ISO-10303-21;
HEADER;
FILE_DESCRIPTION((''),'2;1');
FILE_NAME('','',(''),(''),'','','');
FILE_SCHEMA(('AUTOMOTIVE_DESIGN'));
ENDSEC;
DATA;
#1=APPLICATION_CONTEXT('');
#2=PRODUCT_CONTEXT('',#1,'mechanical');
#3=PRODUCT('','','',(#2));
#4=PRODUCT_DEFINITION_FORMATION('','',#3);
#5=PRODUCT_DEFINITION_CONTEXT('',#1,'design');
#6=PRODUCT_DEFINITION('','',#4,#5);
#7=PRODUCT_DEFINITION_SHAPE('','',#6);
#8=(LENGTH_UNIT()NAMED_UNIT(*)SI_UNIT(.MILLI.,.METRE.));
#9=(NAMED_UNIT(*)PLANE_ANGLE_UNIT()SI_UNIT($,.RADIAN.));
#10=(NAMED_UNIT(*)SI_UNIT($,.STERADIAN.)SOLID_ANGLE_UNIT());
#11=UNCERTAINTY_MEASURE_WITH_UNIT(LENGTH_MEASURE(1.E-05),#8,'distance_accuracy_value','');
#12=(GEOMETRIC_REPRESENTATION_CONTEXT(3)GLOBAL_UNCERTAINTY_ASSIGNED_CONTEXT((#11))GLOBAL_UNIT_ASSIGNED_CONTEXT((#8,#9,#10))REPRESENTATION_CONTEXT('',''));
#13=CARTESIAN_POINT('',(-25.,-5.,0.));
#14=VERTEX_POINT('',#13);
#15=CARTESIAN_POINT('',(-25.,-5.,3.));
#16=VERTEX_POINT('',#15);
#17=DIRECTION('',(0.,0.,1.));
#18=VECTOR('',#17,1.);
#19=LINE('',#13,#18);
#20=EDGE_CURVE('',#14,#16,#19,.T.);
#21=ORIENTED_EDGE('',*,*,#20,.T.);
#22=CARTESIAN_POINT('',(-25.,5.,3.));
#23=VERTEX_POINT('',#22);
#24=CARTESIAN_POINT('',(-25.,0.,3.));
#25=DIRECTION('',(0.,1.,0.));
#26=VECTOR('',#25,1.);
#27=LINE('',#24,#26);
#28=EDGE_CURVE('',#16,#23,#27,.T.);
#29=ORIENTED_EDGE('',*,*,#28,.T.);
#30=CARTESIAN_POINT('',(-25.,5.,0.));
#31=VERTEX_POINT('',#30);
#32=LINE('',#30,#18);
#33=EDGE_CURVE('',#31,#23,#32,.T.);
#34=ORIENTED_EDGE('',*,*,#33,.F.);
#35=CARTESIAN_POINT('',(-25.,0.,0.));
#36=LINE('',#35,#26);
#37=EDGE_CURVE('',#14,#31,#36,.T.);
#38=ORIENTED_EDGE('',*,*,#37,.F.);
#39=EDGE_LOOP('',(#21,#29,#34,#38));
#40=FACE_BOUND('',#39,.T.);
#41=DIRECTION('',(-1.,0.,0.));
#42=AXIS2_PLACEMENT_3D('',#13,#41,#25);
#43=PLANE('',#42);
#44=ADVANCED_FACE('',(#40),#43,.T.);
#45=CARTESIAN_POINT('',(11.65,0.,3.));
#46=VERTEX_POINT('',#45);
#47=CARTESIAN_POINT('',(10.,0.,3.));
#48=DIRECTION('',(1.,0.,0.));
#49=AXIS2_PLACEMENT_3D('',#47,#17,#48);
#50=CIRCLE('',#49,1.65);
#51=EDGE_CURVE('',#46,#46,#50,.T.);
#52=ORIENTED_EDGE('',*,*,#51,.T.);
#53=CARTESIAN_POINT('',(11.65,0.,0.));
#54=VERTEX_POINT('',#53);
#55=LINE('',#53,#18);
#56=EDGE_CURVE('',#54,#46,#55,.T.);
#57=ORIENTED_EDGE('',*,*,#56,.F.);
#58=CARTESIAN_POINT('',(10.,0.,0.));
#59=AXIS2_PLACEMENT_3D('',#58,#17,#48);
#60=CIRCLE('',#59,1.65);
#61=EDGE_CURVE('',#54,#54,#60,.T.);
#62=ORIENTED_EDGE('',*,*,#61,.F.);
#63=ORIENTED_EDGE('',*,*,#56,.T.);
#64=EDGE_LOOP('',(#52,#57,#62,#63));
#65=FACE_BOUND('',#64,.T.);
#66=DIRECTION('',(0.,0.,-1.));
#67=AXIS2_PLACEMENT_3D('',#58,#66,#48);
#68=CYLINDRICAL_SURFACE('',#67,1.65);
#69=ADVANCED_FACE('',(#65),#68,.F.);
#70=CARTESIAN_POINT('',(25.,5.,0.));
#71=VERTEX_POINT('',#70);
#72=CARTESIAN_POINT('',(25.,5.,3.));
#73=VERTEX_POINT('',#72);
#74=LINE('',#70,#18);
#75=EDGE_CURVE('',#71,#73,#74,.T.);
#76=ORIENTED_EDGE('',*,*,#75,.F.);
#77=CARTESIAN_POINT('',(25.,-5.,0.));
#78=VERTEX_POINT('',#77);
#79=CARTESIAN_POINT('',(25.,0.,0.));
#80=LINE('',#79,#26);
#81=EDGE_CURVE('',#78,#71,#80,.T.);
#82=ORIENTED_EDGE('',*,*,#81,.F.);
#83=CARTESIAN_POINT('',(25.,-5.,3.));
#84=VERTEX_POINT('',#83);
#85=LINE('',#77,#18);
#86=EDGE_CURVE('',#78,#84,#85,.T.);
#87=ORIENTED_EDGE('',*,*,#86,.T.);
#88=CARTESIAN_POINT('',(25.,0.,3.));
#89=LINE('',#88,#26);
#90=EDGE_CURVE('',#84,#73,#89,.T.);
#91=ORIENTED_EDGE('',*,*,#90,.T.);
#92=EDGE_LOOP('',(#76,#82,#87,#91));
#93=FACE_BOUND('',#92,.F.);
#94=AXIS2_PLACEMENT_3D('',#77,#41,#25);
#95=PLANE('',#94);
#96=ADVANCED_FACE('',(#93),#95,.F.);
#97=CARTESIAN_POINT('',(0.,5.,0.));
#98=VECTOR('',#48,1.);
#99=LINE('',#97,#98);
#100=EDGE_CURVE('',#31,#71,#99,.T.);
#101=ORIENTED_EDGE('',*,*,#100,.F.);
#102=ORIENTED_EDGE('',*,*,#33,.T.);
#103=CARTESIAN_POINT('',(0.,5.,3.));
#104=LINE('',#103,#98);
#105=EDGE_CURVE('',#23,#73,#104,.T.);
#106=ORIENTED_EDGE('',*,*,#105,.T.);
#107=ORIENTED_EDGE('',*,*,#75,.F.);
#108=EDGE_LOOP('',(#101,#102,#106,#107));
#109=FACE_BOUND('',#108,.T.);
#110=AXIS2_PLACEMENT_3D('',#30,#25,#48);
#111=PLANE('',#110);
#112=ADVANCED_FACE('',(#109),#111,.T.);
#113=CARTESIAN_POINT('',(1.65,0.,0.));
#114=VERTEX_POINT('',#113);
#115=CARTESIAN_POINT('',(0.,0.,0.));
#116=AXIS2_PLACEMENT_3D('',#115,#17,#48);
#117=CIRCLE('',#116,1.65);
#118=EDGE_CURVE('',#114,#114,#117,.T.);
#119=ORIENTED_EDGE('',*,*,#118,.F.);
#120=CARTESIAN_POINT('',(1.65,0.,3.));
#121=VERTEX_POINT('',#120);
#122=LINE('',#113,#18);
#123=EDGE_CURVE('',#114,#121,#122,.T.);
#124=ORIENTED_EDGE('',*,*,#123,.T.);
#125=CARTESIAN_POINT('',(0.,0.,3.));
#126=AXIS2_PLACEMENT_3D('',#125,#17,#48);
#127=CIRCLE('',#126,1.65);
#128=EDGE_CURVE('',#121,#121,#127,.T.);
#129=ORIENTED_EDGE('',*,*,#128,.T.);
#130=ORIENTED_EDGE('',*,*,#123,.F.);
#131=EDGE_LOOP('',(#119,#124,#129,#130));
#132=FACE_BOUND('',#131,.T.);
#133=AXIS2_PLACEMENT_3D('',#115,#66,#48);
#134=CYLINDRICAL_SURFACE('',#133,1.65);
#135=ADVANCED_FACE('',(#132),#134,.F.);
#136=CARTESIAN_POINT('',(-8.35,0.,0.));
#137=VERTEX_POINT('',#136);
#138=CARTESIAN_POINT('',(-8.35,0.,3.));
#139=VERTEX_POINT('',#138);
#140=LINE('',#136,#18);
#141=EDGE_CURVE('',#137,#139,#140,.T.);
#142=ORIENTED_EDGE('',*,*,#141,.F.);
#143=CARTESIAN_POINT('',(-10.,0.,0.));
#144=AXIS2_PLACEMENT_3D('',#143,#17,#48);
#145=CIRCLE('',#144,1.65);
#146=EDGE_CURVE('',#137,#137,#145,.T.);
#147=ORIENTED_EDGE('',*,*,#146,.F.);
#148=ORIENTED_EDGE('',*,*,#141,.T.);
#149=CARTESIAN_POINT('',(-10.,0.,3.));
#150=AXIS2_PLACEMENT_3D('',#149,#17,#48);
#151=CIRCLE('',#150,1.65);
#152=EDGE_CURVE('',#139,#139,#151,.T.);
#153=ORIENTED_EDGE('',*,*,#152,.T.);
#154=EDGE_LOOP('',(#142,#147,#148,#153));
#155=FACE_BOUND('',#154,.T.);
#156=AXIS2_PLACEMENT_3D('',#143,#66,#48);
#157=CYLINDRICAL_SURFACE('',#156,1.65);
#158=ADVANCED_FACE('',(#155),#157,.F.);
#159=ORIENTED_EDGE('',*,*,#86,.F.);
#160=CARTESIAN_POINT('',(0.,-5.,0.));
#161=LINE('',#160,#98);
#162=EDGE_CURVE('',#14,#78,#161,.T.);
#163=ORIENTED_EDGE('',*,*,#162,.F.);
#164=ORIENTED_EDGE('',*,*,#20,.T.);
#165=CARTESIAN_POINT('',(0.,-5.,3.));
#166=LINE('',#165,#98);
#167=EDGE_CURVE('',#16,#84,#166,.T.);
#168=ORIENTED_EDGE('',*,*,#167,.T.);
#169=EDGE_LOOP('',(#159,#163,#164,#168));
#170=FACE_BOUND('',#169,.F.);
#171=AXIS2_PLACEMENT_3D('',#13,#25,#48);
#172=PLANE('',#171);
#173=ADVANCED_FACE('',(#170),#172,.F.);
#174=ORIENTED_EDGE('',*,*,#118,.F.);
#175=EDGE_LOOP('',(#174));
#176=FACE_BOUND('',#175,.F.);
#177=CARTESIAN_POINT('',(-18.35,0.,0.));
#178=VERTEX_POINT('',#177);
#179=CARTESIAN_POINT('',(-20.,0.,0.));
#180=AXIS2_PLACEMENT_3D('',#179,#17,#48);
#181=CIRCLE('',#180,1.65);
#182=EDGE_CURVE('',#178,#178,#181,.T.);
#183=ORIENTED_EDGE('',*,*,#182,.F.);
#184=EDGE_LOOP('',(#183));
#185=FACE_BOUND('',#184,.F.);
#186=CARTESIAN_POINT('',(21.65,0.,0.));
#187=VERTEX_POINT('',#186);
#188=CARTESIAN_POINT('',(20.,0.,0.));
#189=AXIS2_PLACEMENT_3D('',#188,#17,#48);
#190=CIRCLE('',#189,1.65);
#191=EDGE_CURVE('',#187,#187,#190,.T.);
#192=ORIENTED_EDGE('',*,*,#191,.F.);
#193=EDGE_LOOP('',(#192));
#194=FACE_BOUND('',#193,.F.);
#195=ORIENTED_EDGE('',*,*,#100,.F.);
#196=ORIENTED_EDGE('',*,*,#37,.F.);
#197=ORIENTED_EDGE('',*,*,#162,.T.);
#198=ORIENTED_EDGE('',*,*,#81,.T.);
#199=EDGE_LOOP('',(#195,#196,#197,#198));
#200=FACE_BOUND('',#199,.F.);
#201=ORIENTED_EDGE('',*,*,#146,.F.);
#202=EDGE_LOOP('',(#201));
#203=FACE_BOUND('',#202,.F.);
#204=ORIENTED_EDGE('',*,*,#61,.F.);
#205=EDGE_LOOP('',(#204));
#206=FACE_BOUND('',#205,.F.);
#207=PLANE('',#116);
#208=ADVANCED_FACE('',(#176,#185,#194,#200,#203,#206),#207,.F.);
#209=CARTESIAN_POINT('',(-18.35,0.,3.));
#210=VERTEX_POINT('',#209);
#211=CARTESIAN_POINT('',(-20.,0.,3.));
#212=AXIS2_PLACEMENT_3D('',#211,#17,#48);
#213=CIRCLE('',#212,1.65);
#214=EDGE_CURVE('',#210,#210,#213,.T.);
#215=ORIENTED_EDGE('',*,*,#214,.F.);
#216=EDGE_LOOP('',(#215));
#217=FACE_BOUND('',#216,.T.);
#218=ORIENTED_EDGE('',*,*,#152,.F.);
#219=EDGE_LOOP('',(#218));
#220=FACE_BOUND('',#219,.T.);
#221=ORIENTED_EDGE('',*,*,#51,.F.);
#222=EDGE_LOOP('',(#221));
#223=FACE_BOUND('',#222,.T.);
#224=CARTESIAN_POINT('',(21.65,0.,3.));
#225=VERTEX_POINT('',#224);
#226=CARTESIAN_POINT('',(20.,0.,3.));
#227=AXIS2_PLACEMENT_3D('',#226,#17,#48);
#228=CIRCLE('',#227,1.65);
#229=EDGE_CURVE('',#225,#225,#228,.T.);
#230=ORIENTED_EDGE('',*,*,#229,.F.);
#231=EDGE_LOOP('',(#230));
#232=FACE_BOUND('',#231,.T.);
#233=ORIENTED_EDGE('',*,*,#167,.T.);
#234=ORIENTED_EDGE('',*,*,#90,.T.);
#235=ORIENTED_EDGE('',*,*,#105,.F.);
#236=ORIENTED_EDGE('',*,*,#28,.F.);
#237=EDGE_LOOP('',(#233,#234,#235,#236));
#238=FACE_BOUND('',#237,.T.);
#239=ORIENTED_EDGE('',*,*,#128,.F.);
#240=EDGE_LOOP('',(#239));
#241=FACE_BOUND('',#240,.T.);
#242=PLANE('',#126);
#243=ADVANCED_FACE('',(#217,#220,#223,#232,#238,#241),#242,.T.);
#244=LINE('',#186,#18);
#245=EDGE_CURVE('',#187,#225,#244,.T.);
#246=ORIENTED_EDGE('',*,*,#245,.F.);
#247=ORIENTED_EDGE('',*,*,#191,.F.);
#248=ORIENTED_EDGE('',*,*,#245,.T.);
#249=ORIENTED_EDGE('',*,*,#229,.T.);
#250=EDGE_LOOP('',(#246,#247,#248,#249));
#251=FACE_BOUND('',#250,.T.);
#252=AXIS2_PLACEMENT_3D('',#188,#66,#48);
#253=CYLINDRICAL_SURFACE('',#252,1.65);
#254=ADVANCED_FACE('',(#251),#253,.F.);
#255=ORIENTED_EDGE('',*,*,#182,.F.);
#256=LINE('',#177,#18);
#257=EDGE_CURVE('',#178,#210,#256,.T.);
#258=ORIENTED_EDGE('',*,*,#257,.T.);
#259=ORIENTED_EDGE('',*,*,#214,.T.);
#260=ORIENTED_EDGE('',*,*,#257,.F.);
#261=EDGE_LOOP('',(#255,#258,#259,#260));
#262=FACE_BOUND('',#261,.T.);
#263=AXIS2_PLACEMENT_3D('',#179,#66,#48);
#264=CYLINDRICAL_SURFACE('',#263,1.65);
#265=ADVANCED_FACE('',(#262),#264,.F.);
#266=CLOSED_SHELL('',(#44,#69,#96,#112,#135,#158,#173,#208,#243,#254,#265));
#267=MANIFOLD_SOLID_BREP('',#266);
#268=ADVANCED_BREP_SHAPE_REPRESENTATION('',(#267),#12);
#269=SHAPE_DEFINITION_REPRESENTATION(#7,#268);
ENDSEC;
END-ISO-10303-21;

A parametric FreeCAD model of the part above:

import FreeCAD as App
import Part
import Sketcher
Q = App.Units.Quantity


def add_polygon(sketch, points):
    """Adds a closed chain of lines whose ends are joined by coincident constraints."""
    first, n = sketch.GeometryCount, len(points)
    for a, b in zip(points, points[1:] + points[:1]):
        sketch.addGeometry(Part.LineSegment(App.Vector(*a, 0), App.Vector(*b, 0)), False)
    for i in range(n):
        sketch.addConstraint(Sketcher.Constraint("Coincident", first + i, 2, first + (i + 1) % n, 1))

doc = App.newDocument("Part")
body = doc.addObject("PartDesign::Body", "Body")

# Sketch on XY plane
sketch1 = body.newObject("Sketcher::SketchObject", "Sketch")
sketch1.AttachmentSupport = (doc.getObject("XY_Plane"), [""])
sketch1.MapMode = "FlatFace"
add_polygon(sketch1, [(-25, 5), (-25, -5), (25, -5), (25, 5)])  # lines 0-3
sketch1.addGeometry(Part.Circle(App.Vector(-20, 0, 0), App.Vector(0, 0, 1), 1.6), False)  # 4
sketch1.addGeometry(Part.Circle(App.Vector(-10, 0, 0), App.Vector(0, 0, 1), 1.6), False)  # 5
sketch1.addGeometry(Part.Circle(App.Vector(0, 0, 0), App.Vector(0, 0, 1), 1.6), False)  # 6
sketch1.addGeometry(Part.Circle(App.Vector(10, 0, 0), App.Vector(0, 0, 1), 1.6), False)  # 7
sketch1.addGeometry(Part.Circle(App.Vector(20, 0, 0), App.Vector(0, 0, 1), 1.6), False)  # 8
sketch1.addConstraint([
    Sketcher.Constraint("Vertical", 0),
    Sketcher.Constraint("Horizontal", 1),
    Sketcher.Constraint("Vertical", 2),
    Sketcher.Constraint("Horizontal", 3),
    Sketcher.Constraint("Coincident", 6, 3, -1, 1),
    Sketcher.Constraint("Equal", 4, 5),
    Sketcher.Constraint("Equal", 5, 6),
    Sketcher.Constraint("Equal", 6, 7),
    Sketcher.Constraint("Equal", 7, 8),
    Sketcher.Constraint("Symmetric", 5, 3, 7, 3, -1, 1),
    Sketcher.Constraint("Symmetric", 4, 3, 8, 3, -1, 1),
    Sketcher.Constraint("Symmetric", 0, 2, 2, 2, -1, 1),
    Sketcher.Constraint("PointOnObject", 4, 3, -1),
    Sketcher.Constraint("PointOnObject", 5, 3, -1),
    Sketcher.Constraint("Diameter", 4, Q("3.3 mm")),
    Sketcher.Constraint("DistanceX", 1, 1, 1, 2, Q("50 mm")),
    Sketcher.Constraint("DistanceY", 0, 2, 0, 1, Q("10 mm")),
    Sketcher.Constraint("DistanceX", 4, 3, -1, 1, Q("20 mm")),
    Sketcher.Constraint("DistanceX", 5, 3, -1, 1, Q("10 mm")),
])
pad1 = body.newObject("PartDesign::Pad", "Pad")
pad1.Profile = sketch1
pad1.Length = 3

doc.recompute()
